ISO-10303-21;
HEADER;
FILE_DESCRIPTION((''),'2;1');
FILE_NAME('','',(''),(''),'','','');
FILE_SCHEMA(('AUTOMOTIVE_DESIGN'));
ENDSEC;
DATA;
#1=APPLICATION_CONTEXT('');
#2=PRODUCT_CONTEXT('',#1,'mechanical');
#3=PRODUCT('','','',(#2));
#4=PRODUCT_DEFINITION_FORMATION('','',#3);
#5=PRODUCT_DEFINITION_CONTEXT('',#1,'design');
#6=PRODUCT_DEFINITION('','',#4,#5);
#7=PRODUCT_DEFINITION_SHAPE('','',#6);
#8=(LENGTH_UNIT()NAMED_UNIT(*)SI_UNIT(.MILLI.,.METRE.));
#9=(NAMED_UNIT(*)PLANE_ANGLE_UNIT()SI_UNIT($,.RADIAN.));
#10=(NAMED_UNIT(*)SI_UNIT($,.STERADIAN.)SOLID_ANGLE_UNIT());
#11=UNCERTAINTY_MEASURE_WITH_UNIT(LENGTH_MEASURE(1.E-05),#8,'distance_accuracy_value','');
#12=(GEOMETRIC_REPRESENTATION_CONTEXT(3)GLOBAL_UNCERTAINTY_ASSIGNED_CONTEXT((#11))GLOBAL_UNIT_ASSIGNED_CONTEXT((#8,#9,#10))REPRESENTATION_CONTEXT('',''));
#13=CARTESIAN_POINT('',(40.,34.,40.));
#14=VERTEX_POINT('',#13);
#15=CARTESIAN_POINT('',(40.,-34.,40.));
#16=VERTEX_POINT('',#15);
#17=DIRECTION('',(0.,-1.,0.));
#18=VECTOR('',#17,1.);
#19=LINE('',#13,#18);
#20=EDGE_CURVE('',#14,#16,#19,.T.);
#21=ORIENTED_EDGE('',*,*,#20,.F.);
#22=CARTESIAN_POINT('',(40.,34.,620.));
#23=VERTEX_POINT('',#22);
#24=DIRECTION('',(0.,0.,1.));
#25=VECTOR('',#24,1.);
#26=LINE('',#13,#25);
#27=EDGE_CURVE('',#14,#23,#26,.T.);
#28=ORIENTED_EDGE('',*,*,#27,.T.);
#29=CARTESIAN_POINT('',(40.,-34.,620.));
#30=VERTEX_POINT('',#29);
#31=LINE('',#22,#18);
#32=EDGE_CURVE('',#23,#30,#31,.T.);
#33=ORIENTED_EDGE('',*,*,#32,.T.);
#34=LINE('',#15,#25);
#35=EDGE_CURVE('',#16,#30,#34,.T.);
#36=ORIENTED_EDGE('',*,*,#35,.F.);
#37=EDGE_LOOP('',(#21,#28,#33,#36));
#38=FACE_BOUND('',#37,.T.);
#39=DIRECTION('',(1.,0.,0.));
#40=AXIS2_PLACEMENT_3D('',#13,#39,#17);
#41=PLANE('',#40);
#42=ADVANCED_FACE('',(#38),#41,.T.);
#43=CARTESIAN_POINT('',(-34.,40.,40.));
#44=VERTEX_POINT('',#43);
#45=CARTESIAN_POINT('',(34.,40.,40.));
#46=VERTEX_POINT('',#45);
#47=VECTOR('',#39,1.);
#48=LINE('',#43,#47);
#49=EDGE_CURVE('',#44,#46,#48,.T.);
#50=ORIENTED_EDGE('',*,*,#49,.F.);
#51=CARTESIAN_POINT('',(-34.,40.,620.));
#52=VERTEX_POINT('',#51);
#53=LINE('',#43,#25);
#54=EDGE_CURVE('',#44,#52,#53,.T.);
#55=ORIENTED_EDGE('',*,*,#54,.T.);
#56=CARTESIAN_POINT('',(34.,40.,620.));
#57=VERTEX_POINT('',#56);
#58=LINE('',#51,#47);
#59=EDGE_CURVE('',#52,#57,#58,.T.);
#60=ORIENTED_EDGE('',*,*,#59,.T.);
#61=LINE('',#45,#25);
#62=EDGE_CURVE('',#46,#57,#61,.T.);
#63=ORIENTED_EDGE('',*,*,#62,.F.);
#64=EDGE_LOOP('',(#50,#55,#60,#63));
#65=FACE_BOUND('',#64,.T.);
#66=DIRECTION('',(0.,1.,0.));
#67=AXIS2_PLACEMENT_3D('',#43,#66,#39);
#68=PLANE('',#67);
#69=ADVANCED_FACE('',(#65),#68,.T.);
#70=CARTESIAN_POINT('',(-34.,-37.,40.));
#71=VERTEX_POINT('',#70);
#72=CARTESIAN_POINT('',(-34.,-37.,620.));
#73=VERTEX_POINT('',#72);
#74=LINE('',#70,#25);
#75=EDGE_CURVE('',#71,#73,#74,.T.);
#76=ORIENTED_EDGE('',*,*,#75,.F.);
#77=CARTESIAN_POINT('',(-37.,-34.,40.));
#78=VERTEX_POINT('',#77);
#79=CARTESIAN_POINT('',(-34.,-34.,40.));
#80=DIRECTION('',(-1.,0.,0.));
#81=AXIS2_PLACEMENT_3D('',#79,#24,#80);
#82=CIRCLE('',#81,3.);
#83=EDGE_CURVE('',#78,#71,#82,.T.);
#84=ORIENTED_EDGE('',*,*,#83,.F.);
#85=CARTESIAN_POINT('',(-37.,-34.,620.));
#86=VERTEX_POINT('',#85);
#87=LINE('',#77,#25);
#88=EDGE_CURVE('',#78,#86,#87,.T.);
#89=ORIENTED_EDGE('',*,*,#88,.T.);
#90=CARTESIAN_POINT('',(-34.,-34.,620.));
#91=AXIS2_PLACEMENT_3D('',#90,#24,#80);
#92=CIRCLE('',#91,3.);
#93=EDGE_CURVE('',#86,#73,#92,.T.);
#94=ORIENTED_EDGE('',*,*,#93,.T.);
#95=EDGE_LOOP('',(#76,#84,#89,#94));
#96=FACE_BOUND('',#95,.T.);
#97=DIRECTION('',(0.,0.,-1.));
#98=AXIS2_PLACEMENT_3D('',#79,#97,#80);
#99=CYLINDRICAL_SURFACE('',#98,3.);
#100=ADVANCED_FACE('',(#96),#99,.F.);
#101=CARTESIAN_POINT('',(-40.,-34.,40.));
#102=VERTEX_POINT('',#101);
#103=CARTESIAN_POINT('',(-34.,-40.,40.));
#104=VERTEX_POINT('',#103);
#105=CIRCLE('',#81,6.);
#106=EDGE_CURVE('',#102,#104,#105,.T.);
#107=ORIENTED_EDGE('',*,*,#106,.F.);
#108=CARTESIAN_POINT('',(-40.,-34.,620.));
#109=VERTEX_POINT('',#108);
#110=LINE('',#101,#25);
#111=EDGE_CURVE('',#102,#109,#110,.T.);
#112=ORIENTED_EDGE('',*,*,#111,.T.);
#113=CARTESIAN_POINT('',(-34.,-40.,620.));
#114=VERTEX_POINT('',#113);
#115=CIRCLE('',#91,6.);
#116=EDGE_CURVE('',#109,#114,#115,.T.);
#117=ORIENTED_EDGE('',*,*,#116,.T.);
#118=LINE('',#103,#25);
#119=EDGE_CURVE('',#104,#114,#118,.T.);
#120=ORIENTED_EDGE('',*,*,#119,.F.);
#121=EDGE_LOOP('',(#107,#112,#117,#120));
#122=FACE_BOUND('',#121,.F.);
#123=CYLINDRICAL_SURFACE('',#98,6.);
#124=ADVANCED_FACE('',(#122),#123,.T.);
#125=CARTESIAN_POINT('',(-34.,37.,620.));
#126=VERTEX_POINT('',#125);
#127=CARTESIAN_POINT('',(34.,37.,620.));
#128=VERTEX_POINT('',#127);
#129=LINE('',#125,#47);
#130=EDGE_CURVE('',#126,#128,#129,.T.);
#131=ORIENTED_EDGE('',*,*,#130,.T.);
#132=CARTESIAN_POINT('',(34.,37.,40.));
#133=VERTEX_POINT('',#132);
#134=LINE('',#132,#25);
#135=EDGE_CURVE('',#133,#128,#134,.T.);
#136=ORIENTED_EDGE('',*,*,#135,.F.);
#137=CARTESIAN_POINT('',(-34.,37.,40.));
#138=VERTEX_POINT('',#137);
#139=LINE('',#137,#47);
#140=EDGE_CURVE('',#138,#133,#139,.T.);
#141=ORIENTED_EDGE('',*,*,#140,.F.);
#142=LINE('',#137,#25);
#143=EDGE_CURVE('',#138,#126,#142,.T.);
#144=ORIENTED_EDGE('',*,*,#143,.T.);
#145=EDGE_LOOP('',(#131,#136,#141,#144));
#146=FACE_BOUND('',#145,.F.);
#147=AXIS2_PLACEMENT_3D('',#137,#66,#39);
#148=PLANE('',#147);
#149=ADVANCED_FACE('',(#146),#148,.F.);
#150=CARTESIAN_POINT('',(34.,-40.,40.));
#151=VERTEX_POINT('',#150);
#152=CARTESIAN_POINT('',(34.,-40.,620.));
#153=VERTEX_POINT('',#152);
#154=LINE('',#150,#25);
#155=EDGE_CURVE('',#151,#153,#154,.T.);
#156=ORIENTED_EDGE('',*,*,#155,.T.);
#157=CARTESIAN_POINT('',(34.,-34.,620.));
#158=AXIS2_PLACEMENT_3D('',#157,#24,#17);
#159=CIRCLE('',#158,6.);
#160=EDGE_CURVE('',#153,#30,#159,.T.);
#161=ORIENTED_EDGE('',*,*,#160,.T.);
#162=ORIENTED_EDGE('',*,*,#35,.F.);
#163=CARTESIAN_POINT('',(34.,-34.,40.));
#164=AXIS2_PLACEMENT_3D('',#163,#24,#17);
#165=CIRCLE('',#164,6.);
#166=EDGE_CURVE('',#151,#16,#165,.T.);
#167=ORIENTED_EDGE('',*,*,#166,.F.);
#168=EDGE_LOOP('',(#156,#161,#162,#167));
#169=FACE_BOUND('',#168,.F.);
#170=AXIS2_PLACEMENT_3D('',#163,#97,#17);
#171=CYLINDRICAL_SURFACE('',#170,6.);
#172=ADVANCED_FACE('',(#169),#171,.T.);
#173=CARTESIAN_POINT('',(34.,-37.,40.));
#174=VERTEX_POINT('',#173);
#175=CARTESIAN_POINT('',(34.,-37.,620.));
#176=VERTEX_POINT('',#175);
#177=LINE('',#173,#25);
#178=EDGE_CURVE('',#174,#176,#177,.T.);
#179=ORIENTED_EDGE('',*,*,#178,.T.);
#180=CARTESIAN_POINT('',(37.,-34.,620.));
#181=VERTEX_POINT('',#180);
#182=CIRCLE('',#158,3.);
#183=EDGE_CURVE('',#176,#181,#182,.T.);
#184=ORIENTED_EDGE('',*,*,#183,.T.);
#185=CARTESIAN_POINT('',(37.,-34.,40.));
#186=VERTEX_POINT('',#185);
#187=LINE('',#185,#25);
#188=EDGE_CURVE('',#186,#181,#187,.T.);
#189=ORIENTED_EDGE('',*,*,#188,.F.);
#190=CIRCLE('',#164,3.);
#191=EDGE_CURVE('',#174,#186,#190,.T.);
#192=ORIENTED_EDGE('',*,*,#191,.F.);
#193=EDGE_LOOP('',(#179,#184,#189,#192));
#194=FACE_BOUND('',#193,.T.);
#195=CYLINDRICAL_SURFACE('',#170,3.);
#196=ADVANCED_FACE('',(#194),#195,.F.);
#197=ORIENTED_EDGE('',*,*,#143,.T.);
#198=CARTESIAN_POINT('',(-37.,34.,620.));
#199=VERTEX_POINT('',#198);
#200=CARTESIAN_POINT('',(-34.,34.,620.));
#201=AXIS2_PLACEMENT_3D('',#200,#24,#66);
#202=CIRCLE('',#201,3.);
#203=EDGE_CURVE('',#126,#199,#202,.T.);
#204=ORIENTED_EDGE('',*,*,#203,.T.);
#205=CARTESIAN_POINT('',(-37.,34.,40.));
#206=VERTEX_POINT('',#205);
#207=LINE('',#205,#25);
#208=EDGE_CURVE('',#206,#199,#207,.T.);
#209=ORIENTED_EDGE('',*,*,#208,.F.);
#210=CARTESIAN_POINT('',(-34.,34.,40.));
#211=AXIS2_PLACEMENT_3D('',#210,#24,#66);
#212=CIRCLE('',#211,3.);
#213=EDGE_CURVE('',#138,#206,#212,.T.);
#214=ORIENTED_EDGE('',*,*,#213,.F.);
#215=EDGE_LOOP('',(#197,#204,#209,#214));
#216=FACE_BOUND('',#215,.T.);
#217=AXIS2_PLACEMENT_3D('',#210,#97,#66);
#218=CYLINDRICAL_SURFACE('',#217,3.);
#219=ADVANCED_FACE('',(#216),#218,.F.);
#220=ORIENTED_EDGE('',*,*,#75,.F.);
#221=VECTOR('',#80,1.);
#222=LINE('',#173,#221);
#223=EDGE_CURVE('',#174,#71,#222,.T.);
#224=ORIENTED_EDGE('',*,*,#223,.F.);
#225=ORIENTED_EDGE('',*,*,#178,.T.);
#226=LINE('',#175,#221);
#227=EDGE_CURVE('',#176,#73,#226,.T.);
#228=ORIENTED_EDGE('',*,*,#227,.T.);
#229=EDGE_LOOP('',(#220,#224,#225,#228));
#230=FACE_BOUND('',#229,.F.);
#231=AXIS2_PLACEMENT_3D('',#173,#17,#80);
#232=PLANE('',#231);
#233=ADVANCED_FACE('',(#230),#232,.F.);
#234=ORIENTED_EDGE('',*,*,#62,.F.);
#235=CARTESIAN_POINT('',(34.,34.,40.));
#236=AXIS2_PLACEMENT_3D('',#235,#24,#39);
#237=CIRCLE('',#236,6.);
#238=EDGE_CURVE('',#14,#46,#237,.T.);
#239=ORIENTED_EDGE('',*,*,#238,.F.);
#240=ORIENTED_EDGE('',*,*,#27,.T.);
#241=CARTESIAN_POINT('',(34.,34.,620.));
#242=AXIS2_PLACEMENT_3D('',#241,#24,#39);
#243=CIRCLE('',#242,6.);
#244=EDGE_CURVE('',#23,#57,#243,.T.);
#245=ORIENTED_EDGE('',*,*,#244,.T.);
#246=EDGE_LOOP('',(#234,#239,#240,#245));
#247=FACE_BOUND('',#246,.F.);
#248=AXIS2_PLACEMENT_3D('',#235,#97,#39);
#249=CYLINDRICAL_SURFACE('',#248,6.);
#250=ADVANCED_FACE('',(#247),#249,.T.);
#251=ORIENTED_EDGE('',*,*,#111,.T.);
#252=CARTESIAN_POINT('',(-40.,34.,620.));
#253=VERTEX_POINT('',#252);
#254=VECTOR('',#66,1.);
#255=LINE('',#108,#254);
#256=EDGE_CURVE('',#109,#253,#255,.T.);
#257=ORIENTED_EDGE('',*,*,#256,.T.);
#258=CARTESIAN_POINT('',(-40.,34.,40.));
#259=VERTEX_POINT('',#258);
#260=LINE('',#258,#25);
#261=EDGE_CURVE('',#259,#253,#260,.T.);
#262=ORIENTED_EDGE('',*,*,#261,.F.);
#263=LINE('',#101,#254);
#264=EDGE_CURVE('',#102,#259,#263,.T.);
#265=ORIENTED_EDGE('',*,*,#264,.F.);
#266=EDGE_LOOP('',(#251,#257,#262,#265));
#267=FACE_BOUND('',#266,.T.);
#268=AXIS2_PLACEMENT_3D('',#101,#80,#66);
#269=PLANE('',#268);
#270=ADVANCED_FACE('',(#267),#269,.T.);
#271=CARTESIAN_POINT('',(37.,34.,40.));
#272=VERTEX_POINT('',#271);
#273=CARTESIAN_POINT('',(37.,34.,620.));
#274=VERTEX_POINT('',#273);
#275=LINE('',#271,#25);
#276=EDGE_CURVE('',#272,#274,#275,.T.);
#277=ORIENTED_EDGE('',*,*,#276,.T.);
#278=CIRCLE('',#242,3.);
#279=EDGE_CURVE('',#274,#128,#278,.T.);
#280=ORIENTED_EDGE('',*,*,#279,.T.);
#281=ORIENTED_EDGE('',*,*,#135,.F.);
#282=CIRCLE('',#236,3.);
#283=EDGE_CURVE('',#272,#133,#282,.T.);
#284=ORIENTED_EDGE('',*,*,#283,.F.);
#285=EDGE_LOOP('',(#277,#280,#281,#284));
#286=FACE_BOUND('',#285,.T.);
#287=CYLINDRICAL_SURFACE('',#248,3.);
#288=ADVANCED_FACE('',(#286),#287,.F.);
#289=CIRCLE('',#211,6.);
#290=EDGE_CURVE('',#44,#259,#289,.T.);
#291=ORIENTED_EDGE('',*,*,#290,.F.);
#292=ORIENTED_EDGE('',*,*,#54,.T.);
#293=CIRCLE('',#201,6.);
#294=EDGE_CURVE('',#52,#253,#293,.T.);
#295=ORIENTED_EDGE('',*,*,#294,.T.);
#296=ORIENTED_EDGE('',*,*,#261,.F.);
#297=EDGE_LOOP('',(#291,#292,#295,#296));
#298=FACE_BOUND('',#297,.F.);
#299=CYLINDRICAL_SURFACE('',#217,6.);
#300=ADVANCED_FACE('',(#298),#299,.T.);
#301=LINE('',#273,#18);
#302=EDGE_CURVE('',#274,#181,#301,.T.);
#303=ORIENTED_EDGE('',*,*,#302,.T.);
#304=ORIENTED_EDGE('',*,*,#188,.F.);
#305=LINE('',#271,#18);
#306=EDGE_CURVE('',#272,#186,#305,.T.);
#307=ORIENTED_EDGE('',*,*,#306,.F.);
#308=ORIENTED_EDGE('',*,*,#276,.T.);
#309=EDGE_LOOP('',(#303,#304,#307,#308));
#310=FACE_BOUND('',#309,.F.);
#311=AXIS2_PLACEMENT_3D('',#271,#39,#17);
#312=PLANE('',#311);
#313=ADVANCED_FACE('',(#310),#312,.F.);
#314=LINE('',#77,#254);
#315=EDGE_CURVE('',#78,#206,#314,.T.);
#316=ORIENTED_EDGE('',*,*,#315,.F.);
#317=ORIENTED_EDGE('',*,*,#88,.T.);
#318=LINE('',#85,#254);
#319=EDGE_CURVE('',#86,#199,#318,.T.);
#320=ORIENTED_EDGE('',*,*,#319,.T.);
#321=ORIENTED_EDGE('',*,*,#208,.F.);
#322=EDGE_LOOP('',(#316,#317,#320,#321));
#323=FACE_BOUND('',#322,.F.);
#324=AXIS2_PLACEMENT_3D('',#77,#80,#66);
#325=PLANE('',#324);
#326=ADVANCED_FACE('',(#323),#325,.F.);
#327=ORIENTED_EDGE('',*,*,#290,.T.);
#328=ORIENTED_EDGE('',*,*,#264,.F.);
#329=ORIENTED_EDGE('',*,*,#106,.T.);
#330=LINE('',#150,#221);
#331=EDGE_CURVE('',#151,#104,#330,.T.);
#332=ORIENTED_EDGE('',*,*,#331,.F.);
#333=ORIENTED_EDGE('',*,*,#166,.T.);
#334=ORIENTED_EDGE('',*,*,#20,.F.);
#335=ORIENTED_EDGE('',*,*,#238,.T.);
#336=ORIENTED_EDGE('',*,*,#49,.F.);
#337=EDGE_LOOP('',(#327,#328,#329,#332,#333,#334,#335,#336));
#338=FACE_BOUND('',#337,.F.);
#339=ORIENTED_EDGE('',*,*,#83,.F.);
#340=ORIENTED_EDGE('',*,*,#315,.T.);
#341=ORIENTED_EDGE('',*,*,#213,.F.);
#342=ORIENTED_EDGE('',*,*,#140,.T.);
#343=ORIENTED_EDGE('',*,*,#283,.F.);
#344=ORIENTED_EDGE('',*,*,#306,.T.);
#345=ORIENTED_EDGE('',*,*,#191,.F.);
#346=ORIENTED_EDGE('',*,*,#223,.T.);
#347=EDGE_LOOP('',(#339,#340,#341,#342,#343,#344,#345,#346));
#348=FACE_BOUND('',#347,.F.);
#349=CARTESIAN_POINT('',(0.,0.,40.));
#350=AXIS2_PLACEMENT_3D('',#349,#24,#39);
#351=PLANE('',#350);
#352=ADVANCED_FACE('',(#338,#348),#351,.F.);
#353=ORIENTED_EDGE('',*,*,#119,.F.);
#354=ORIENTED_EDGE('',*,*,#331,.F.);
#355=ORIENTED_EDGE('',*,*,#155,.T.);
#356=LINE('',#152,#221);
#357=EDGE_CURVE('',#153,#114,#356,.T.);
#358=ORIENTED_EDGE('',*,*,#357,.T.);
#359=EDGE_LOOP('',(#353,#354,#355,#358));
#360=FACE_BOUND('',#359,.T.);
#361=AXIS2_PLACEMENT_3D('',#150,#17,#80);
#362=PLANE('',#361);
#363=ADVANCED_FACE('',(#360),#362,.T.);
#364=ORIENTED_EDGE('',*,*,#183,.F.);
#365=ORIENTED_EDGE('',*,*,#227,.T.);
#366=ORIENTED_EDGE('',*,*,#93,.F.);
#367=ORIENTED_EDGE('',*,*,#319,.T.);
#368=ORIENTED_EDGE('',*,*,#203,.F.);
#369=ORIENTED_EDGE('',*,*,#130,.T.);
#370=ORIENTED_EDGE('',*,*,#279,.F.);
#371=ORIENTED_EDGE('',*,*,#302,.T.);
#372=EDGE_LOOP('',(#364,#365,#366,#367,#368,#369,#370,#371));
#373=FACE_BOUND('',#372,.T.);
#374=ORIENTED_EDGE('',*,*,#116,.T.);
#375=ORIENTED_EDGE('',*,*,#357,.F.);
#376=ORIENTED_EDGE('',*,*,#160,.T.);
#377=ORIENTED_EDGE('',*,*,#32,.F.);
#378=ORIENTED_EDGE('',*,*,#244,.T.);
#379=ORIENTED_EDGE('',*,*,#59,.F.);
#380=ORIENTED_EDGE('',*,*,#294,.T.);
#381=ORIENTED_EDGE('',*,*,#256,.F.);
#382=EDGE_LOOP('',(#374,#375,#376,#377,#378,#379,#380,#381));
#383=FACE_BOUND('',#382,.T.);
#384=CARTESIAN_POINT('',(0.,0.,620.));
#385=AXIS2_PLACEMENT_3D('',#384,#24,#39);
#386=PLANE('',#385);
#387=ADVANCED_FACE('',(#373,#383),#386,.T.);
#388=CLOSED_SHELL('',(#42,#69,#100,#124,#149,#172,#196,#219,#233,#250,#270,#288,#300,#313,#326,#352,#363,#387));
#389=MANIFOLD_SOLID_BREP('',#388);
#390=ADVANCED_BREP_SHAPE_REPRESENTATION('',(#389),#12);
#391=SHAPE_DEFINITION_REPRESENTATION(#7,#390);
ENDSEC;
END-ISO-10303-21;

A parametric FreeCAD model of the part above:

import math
import FreeCAD as App
import Part
import Sketcher

V = App.Vector
Q = App.Units.Quantity

doc = App.newDocument("Part")
body = doc.addObject("PartDesign::Body", "Body")

# Sketch on XY plane
sketch1 = body.newObject("Sketcher::SketchObject", "Sketch")
sketch1.AttachmentSupport = (doc.getObject("XY_Plane"), [""])
sketch1.MapMode = "FlatFace"
sketch1.AttachmentOffset = App.Placement(V(0, 0, 40), App.Rotation())
sketch1.addGeometry([
    Part.LineSegment(V(-40, 34, 0), V(-40, -34, 0)),  # 0
    Part.ArcOfCircle(Part.Circle(V(-34, -34, 0), V(0, 0, 1), 6), math.radians(180), math.radians(270)),  # 1
    Part.LineSegment(V(-34, -40, 0), V(34, -40, 0)),  # 2
    Part.ArcOfCircle(Part.Circle(V(34, -34, 0), V(0, 0, 1), 6), math.radians(-90), math.radians(0)),  # 3
    Part.LineSegment(V(40, -34, 0), V(40, 34, 0)),  # 4
    Part.ArcOfCircle(Part.Circle(V(34, 34, 0), V(0, 0, 1), 6), math.radians(0), math.radians(90)),  # 5
    Part.LineSegment(V(34, 40, 0), V(-34, 40, 0)),  # 6
    Part.ArcOfCircle(Part.Circle(V(-34, 34, 0), V(0, 0, 1), 6), math.radians(90), math.radians(180)),  # 7
    Part.ArcOfCircle(Part.Circle(V(-34, 34, 0), V(0, 0, 1), 3), math.radians(90), math.radians(180)),  # 8
    Part.LineSegment(V(-34, 37, 0), V(34, 37, 0)),  # 9
    Part.ArcOfCircle(Part.Circle(V(34, 34, 0), V(0, 0, 1), 3), math.radians(0), math.radians(90)),  # 10
    Part.LineSegment(V(37, 34, 0), V(37, -34, 0)),  # 11
    Part.ArcOfCircle(Part.Circle(V(34, -34, 0), V(0, 0, 1), 3), math.radians(-90), math.radians(0)),  # 12
    Part.LineSegment(V(34, -37, 0), V(-34, -37, 0)),  # 13
    Part.ArcOfCircle(Part.Circle(V(-34, -34, 0), V(0, 0, 1), 3), math.radians(180), math.radians(270)),  # 14
    Part.LineSegment(V(-37, -34, 0), V(-37, 34, 0)),  # 15
], False)
sketch1.addConstraint([
    Sketcher.Constraint("Tangent", 0, 2, 1, 1),
    Sketcher.Constraint("Tangent", 1, 2, 2, 1),
    Sketcher.Constraint("Tangent", 2, 2, 3, 1),
    Sketcher.Constraint("Tangent", 3, 2, 4, 1),
    Sketcher.Constraint("Tangent", 4, 2, 5, 1),
    Sketcher.Constraint("Tangent", 5, 2, 6, 1),
    Sketcher.Constraint("Tangent", 6, 2, 7, 1),
    Sketcher.Constraint("Tangent", 7, 2, 0, 1),
    Sketcher.Constraint("Tangent", 8, 1, 9, 1),
    Sketcher.Constraint("Tangent", 9, 2, 10, 2),
    Sketcher.Constraint("Tangent", 10, 1, 11, 1),
    Sketcher.Constraint("Tangent", 11, 2, 12, 2),
    Sketcher.Constraint("Tangent", 12, 1, 13, 1),
    Sketcher.Constraint("Tangent", 13, 2, 14, 2),
    Sketcher.Constraint("Tangent", 14, 1, 15, 1),
    Sketcher.Constraint("Tangent", 15, 2, 8, 2),
    Sketcher.Constraint("Vertical", 0),
    Sketcher.Constraint("Horizontal", 2),
    Sketcher.Constraint("Vertical", 4),
    Sketcher.Constraint("Horizontal", 6),
    Sketcher.Constraint("Horizontal", 9),
    Sketcher.Constraint("Vertical", 11),
    Sketcher.Constraint("Horizontal", 13),
    Sketcher.Constraint("Vertical", 15),
    Sketcher.Constraint("Coincident", 8, 3, 7, 3),
    Sketcher.Constraint("Coincident", 10, 3, 5, 3),
    Sketcher.Constraint("Coincident", 12, 3, 3, 3),
    Sketcher.Constraint("Equal", 1, 3),
    Sketcher.Constraint("Equal", 3, 5),
    Sketcher.Constraint("Equal", 5, 7),
    Sketcher.Constraint("Equal", 12, 14),
    Sketcher.Constraint("Symmetric", 1, 3, 5, 3, -1, 1),
    Sketcher.Constraint("Equal", 13, 0),
    Sketcher.Constraint("Radius", 1, Q("6 mm")),
    Sketcher.Constraint("Radius", 8, Q("3 mm")),
    Sketcher.Constraint("DistanceX", 0, 2, -1, 1, Q("40 mm")),
])
pad1 = body.newObject("PartDesign::Pad", "Pad")
pad1.Profile = sketch1
pad1.Length = 580

doc.recompute()
